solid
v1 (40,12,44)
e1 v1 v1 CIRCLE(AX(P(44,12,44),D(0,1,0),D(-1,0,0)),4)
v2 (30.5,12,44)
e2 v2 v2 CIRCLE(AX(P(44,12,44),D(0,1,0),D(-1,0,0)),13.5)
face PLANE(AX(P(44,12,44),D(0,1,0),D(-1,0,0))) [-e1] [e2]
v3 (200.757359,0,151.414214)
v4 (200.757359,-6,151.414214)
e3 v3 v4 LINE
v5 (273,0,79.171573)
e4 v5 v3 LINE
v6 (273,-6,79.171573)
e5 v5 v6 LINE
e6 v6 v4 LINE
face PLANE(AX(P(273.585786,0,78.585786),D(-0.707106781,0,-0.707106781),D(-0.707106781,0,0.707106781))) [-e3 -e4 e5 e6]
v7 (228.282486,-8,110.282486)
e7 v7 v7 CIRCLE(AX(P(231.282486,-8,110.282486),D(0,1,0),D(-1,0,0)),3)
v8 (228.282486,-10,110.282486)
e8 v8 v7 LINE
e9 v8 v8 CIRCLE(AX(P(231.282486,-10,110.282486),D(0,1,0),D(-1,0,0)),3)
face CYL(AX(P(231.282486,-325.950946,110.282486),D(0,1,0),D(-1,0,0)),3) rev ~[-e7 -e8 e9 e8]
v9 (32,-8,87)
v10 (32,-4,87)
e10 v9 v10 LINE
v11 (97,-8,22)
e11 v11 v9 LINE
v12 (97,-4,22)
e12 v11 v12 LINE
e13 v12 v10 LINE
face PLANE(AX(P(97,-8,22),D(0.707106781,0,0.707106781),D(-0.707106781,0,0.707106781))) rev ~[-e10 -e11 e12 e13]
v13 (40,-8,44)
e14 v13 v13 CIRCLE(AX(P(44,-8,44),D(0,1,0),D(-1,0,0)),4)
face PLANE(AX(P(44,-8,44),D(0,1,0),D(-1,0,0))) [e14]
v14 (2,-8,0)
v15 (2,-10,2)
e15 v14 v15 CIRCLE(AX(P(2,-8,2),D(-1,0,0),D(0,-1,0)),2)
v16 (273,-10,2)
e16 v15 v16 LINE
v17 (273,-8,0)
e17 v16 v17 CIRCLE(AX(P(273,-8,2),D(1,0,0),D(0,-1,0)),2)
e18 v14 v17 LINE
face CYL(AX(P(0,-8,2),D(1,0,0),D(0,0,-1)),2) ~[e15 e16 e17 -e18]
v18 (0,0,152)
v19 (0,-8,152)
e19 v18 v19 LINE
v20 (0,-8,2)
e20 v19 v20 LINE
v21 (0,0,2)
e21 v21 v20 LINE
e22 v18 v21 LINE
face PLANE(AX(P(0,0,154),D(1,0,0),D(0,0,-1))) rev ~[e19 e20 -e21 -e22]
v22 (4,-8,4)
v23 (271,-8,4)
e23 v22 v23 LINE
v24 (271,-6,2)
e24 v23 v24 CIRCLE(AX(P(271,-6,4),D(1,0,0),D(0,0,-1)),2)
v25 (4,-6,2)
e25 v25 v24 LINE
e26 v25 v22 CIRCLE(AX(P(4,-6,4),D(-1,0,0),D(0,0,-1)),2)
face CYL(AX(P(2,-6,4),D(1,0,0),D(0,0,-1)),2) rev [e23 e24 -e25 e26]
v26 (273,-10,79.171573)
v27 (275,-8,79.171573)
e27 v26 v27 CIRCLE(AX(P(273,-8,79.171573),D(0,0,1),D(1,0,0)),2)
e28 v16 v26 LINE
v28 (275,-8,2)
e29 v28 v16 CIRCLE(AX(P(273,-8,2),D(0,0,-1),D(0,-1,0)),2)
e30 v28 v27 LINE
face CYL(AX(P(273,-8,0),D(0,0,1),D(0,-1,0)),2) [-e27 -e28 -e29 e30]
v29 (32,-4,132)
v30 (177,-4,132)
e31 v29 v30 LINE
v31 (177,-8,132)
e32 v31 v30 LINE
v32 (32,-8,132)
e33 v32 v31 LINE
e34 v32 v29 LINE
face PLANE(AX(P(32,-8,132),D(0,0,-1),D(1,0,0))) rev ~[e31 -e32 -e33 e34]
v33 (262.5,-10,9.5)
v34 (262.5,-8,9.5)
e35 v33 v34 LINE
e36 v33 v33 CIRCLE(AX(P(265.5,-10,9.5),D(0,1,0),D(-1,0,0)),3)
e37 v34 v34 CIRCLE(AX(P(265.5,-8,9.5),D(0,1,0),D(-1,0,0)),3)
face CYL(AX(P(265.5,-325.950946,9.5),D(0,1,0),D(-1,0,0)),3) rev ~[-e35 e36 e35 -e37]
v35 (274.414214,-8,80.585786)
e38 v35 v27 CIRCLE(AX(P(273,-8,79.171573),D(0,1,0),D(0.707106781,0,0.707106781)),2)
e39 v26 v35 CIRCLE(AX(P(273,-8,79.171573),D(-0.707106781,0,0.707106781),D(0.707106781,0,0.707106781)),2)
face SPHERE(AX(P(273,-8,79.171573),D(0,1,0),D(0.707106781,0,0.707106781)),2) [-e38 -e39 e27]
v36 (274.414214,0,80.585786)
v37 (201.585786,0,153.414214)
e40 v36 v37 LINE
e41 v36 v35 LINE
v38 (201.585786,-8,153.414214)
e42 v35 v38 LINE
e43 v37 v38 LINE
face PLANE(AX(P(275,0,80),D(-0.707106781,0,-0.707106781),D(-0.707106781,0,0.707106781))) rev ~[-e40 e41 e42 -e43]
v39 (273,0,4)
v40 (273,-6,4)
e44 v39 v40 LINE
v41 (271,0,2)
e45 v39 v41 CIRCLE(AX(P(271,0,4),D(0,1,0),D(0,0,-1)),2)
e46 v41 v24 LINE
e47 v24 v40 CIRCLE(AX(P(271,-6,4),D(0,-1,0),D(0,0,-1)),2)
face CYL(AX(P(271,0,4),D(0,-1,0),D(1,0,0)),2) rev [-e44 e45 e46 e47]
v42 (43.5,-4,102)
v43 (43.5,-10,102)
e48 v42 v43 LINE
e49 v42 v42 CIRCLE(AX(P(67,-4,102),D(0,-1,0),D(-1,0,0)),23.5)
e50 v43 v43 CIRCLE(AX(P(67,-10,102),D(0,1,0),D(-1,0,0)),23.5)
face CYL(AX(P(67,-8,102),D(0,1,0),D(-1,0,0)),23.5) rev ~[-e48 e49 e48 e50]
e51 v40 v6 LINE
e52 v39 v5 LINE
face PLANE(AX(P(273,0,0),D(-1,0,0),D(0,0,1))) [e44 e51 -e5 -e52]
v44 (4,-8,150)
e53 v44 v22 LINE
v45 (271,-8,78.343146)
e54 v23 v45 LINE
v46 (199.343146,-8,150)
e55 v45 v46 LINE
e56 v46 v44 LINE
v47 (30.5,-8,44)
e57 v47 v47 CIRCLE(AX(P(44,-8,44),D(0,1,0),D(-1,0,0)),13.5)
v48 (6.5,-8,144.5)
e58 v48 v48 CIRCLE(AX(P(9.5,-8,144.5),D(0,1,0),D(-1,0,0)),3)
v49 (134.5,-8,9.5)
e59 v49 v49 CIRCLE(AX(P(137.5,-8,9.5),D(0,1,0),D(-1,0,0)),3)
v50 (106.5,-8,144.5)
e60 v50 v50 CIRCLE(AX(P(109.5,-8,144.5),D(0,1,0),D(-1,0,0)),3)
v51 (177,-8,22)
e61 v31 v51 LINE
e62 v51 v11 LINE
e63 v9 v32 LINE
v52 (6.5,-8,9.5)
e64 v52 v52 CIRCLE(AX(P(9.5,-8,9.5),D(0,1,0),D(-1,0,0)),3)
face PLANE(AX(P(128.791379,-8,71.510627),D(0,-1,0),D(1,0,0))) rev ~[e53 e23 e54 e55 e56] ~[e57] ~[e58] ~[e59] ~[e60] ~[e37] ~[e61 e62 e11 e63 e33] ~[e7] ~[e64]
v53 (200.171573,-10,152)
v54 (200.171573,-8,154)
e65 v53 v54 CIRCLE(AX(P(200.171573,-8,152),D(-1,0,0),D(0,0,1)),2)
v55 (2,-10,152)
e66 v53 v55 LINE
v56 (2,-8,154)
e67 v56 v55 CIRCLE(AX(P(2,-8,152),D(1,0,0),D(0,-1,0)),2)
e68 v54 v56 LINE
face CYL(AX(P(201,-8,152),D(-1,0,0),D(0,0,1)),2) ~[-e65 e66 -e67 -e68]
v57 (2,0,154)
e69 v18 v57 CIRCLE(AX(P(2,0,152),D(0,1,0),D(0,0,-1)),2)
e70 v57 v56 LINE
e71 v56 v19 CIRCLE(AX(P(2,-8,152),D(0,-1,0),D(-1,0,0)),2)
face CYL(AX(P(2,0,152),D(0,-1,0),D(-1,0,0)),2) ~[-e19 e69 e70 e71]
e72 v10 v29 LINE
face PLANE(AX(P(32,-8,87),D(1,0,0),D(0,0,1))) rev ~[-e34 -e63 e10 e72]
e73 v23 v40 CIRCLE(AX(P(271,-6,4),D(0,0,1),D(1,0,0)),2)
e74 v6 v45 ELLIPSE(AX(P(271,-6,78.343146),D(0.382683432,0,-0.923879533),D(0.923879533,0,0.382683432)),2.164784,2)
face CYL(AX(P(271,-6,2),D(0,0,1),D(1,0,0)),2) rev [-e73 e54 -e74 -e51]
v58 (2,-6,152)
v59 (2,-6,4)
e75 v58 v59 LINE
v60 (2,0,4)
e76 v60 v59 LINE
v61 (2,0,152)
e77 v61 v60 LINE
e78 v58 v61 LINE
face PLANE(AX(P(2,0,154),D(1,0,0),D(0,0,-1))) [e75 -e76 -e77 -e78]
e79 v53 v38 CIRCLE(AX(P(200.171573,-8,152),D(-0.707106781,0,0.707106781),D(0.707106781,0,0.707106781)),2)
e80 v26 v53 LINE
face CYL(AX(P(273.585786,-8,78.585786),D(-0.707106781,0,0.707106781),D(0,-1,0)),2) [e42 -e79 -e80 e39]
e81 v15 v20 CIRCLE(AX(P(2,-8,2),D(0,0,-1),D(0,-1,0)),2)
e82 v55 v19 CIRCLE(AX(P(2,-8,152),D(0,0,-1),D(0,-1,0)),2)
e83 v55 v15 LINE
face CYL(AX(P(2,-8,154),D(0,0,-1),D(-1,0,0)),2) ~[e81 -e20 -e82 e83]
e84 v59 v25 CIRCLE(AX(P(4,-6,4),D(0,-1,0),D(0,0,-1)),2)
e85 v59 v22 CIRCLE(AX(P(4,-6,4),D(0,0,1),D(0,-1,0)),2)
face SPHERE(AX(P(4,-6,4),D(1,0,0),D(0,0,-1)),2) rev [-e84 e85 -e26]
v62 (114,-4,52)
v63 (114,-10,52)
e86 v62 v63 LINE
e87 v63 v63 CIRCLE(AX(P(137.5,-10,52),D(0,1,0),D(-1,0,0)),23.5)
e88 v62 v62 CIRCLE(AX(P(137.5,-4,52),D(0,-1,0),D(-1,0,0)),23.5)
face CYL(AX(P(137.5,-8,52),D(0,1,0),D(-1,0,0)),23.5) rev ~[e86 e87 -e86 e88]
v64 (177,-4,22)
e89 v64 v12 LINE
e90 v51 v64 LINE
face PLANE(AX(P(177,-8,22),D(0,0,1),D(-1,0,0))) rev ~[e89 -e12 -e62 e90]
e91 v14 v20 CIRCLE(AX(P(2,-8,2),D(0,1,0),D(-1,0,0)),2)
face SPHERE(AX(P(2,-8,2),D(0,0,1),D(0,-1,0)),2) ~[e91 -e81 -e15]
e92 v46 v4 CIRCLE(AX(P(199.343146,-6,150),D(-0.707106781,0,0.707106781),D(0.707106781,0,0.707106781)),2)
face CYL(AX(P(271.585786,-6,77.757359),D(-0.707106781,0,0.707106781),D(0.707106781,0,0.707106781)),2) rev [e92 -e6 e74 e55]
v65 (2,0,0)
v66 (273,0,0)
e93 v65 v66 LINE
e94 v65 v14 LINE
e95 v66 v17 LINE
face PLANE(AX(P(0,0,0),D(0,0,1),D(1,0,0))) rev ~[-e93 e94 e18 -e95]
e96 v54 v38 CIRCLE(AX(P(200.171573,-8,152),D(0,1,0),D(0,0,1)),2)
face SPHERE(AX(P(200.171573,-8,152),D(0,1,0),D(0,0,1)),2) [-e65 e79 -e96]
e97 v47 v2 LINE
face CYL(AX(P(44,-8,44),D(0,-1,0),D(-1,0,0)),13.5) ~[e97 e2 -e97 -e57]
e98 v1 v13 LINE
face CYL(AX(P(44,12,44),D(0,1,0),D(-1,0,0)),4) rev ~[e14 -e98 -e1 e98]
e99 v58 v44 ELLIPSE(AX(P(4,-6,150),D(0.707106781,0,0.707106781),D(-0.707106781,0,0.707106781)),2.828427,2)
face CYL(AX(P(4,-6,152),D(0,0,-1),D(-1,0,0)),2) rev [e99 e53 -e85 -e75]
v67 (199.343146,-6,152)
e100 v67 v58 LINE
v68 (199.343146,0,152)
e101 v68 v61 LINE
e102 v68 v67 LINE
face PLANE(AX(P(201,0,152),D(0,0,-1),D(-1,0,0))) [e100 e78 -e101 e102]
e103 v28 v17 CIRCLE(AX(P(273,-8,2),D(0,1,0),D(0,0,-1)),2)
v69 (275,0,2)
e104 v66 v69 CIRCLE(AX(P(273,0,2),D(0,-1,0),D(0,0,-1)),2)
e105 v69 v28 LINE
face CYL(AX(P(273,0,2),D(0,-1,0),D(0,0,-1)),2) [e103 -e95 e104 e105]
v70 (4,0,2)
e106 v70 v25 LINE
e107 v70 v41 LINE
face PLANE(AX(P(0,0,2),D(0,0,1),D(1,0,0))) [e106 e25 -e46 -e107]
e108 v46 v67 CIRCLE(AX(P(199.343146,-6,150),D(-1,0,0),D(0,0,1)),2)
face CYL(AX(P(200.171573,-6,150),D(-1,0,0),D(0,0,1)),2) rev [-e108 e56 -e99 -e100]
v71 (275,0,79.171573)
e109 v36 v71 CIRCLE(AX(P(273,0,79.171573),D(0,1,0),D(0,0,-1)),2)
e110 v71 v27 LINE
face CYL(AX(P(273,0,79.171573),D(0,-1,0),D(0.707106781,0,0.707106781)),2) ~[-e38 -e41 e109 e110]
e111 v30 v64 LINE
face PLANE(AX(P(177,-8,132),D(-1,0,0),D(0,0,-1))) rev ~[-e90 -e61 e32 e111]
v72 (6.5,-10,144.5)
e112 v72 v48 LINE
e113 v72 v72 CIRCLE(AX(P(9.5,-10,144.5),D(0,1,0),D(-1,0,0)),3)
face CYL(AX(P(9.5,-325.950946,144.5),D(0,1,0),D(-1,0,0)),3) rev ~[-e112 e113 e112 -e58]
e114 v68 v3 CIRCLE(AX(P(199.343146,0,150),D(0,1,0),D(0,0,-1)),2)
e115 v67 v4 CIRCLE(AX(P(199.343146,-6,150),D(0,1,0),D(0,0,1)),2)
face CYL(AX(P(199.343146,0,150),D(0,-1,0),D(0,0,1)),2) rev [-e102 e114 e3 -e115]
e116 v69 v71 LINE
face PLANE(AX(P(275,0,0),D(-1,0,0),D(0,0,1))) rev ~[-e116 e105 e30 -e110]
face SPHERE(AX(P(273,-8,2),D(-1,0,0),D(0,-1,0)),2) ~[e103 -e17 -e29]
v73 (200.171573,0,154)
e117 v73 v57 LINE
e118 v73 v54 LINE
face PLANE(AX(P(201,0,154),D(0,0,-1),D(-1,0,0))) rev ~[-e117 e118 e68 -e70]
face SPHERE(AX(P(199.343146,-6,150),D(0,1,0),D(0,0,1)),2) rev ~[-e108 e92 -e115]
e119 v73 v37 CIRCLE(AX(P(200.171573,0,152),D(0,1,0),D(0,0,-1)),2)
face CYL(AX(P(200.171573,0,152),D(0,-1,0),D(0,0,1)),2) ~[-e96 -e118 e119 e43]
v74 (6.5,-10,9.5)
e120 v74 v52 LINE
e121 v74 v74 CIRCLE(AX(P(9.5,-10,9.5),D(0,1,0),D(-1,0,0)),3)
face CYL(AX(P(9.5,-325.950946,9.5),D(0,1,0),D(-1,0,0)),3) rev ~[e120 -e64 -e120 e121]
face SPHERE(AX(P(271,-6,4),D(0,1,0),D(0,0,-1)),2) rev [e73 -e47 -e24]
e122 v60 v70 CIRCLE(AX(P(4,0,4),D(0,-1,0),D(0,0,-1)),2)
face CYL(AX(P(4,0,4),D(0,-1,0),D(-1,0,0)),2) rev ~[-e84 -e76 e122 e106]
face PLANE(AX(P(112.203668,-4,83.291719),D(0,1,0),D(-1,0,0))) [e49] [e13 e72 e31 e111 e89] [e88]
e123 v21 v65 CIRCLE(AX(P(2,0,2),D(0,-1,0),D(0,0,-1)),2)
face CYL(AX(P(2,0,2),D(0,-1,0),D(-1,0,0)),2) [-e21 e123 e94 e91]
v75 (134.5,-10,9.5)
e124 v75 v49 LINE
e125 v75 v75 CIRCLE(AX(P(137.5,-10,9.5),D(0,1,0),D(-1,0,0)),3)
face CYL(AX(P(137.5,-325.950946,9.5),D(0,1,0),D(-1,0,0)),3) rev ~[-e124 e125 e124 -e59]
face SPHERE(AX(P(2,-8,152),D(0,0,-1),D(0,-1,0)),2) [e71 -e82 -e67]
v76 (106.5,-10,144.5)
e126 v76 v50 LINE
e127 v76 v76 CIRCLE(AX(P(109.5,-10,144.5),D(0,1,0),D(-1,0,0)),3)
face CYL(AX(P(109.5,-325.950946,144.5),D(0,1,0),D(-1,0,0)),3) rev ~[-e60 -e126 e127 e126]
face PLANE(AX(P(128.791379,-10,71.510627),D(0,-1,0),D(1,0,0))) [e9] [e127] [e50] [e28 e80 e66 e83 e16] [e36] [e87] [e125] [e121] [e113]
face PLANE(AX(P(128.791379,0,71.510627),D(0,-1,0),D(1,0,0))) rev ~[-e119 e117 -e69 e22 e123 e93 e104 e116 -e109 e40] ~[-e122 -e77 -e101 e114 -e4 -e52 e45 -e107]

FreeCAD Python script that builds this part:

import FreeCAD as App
import Part
import Sketcher
from FreeCAD import Vector
Q = App.Units.Quantity


def edges_at(feature, points):
    """Names of the edges that pass closest to the given points."""
    edges = feature.Shape.Edges
    near = lambda p: min(range(len(edges)), key=lambda i: edges[i].distToShape(Part.Vertex(*p))[0])
    return sorted({f"Edge{near(p) + 1}" for p in points})


def faces_at(feature, points):
    """Names of the faces that lie closest to the given points."""
    faces = feature.Shape.Faces
    near = lambda p: min(range(len(faces)), key=lambda i: faces[i].distToShape(Part.Vertex(*p))[0])
    return sorted({f"Face{near(p) + 1}" for p in points})

doc = App.newDocument("Part")
params = doc.addObject("Spreadsheet::Sheet", "Params")
for row, (alias, value) in enumerate([
    ("sketch1_width", "275 mm"),
    ("sketch1_width2", "201 mm"),
    ("sketch1_height", "154 mm"),
    ("sketch1_height2", "80 mm"),
    ("pad1_length", "10 mm"),
    ("thickness_wall", "2 mm"),
    ("sketch2_width", "145 mm"),
    ("sketch2_width2", "80 mm"),
    ("sketch2_height", "45 mm"),
    ("sketch2_height2", "110 mm"),
    ("pad2_length", "4 mm"),
    ("sketch3_diameter", "47 mm"),
    ("sketch4_diameter", "27 mm"),
    ("pad3_length", "20 mm"),
    ("sketch5_diameter", "8 mm"),
    ("pocket2_length", "20 mm"),
    ("sketch6_diameter", "6 mm"),
    ("hole_diameter", "6 mm"),
    ("fillet_radius", "2 mm"),
    ("fillet2_radius", "2 mm"),
], start=1):
    params.set(f"A{row}", alias)
    params.set(f"B{row}", "=" + value)
    params.setAlias(f"B{row}", alias)

body = doc.addObject("PartDesign::Body", "Body")

sketch1 = body.newObject("Sketcher::SketchObject", "Sketch")
sketch1.AttachmentSupport = (doc.getObject("XZ_Plane"), [""])
sketch1.MapMode = "FlatFace"
sketch1.addGeometry(Part.LineSegment(Vector(0, 154, 0), Vector(0, 0, 0)), False)
sketch1.addGeometry(Part.LineSegment(Vector(0, 0, 0), Vector(275, 0, 0)), False)
sketch1.addGeometry(Part.LineSegment(Vector(275, 0, 0), Vector(275, 80, 0)), False)
sketch1.addGeometry(Part.LineSegment(Vector(275, 80, 0), Vector(201, 154, 0)), False)
sketch1.addGeometry(Part.LineSegment(Vector(201, 154, 0), Vector(0, 154, 0)), False)
sketch1.addConstraint(Sketcher.Constraint("Coincident", 0, 2, 1, 1))
sketch1.addConstraint(Sketcher.Constraint("Coincident", 1, 2, 2, 1))
sketch1.addConstraint(Sketcher.Constraint("Coincident", 2, 2, 3, 1))
sketch1.addConstraint(Sketcher.Constraint("Coincident", 3, 2, 4, 1))
sketch1.addConstraint(Sketcher.Constraint("Coincident", 4, 2, 0, 1))
sketch1.addConstraint(Sketcher.Constraint("Vertical", 0))
sketch1.addConstraint(Sketcher.Constraint("Horizontal", 1))
sketch1.addConstraint(Sketcher.Constraint("Vertical", 2))
sketch1.addConstraint(Sketcher.Constraint("Horizontal", 4))
sketch1.addConstraint(Sketcher.Constraint("Coincident", 0, 2, -1, 1))
sketch1.addConstraint(Sketcher.Constraint("DistanceX", 1, 1, 1, 2, Q("275 mm")))
sketch1.addConstraint(Sketcher.Constraint("DistanceX", 4, 2, 4, 1, Q("201 mm")))
sketch1.addConstraint(Sketcher.Constraint("DistanceY", 0, 2, 0, 1, Q("154 mm")))
sketch1.addConstraint(Sketcher.Constraint("DistanceY", 2, 1, 2, 2, Q("80 mm")))
sketch1.setExpression("Constraints[10]", "Params.sketch1_width")
sketch1.setExpression("Constraints[11]", "Params.sketch1_width2")
sketch1.setExpression("Constraints[12]", "Params.sketch1_height")
sketch1.setExpression("Constraints[13]", "Params.sketch1_height2")
pad1 = body.newObject("PartDesign::Pad", "Pad")
pad1.Profile = sketch1
pad1.setExpression("Length", "Params.pad1_length")
doc.recompute()

thickness = body.newObject("PartDesign::Thickness", "Thickness")
thickness.Base = (pad1, faces_at(pad1, [(137.5, 0, 77)]))
thickness.setExpression("Value", "Params.thickness_wall")
thickness.Reversed = True
thickness.Join = "Arc"

sketch2 = body.newObject("Sketcher::SketchObject", "Sketch001")
sketch2.AttachmentSupport = (doc.getObject("XZ_Plane"), [""])
sketch2.MapMode = "FlatFace"
sketch2.AttachmentOffset = App.Placement(Vector(0, 0, 8), App.Rotation())
sketch2.addGeometry(Part.LineSegment(Vector(32, 87, 0), Vector(32, 132, 0)), False)
sketch2.addGeometry(Part.LineSegment(Vector(32, 132, 0), Vector(177, 132, 0)), False)
sketch2.addGeometry(Part.LineSegment(Vector(177, 132, 0), Vector(177, 22, 0)), False)
sketch2.addGeometry(Part.LineSegment(Vector(177, 22, 0), Vector(97, 22, 0)), False)
sketch2.addGeometry(Part.LineSegment(Vector(97, 22, 0), Vector(32, 87, 0)), False)
sketch2.addConstraint(Sketcher.Constraint("Coincident", 0, 2, 1, 1))
sketch2.addConstraint(Sketcher.Constraint("Coincident", 1, 2, 2, 1))
sketch2.addConstraint(Sketcher.Constraint("Coincident", 2, 2, 3, 1))
sketch2.addConstraint(Sketcher.Constraint("Coincident", 3, 2, 4, 1))
sketch2.addConstraint(Sketcher.Constraint("Coincident", 4, 2, 0, 1))
sketch2.addConstraint(Sketcher.Constraint("Vertical", 0))
sketch2.addConstraint(Sketcher.Constraint("Horizontal", 1))
sketch2.addConstraint(Sketcher.Constraint("Vertical", 2))
sketch2.addConstraint(Sketcher.Constraint("Horizontal", 3))
sketch2.addConstraint(Sketcher.Constraint("DistanceX", 1, 1, 1, 2, Q("145 mm")))
sketch2.addConstraint(Sketcher.Constraint("DistanceX", 3, 2, 3, 1, Q("80 mm")))
sketch2.addConstraint(Sketcher.Constraint("DistanceY", 0, 1, 0, 2, Q("45 mm")))
sketch2.addConstraint(Sketcher.Constraint("DistanceY", 2, 2, 2, 1, Q("110 mm")))
sketch2.addConstraint(Sketcher.Constraint("DistanceX", -1, 1, 0, 2, Q("32 mm")))
sketch2.addConstraint(Sketcher.Constraint("DistanceY", -1, 1, 0, 2, Q("132 mm")))
sketch2.setExpression("Constraints[9]", "Params.sketch2_width")
sketch2.setExpression("Constraints[10]", "Params.sketch2_width2")
sketch2.setExpression("Constraints[11]", "Params.sketch2_height")
sketch2.setExpression("Constraints[12]", "Params.sketch2_height2")
pad2 = body.newObject("PartDesign::Pad", "Pad001")
pad2.Profile = sketch2
pad2.setExpression("Length", "Params.pad2_length")
pad2.Reversed = True

sketch3 = body.newObject("Sketcher::SketchObject", "Sketch002")
sketch3.AttachmentSupport = (doc.getObject("XZ_Plane"), [""])
sketch3.MapMode = "FlatFace"
sketch3.AttachmentOffset = App.Placement(Vector(0, 0, 8), App.Rotation())
sketch3.addGeometry(Part.Circle(Vector(67, 102, 0), Vector(0, 0, 1), 24), False)
sketch3.addGeometry(Part.Circle(Vector(138, 52, 0), Vector(0, 0, 1), 24), False)
sketch3.addConstraint(Sketcher.Constraint("Equal", 0, 1))
sketch3.addConstraint(Sketcher.Constraint("Diameter", 0, Q("47 mm")))
sketch3.addConstraint(Sketcher.Constraint("DistanceX", -1, 1, 0, 3, Q("67 mm")))
sketch3.addConstraint(Sketcher.Constraint("DistanceY", -1, 1, 0, 3, Q("102 mm")))
sketch3.addConstraint(Sketcher.Constraint("DistanceY", -1, 1, 1, 3, Q("52 mm")))
sketch3.addConstraint(Sketcher.Constraint("DistanceX", -1, 1, 1, 3, Q("137.5 mm")))
sketch3.setExpression("Constraints[1]", "Params.sketch3_diameter")
pocket1 = body.newObject("PartDesign::Pocket", "Pocket")
pocket1.Profile = sketch3
pocket1.Type = "ThroughAll"
pocket1.Midplane = True

sketch4 = body.newObject("Sketcher::SketchObject", "Sketch003")
sketch4.AttachmentSupport = (doc.getObject("XZ_Plane"), [""])
sketch4.MapMode = "FlatFace"
sketch4.AttachmentOffset = App.Placement(Vector(0, 0, 8), App.Rotation())
sketch4.addGeometry(Part.Circle(Vector(44, 44, 0), Vector(0, 0, 1), 14), False)
sketch4.addConstraint(Sketcher.Constraint("Diameter", 0, Q("27 mm")))
sketch4.addConstraint(Sketcher.Constraint("DistanceX", -1, 1, 0, 3, Q("44 mm")))
sketch4.addConstraint(Sketcher.Constraint("DistanceY", -1, 1, 0, 3, Q("44 mm")))
sketch4.setExpression("Constraints[0]", "Params.sketch4_diameter")
pad3 = body.newObject("PartDesign::Pad", "Pad002")
pad3.Profile = sketch4
pad3.setExpression("Length", "Params.pad3_length")
pad3.Reversed = True

sketch5 = body.newObject("Sketcher::SketchObject", "Sketch004")
sketch5.AttachmentSupport = (doc.getObject("XZ_Plane"), [""])
sketch5.MapMode = "FlatFace"
sketch5.AttachmentOffset = App.Placement(Vector(0, 0, -12), App.Rotation())
sketch5.addGeometry(Part.Circle(Vector(44, 44, 0), Vector(0, 0, 1), 4), False)
sketch5.addConstraint(Sketcher.Constraint("Diameter", 0, Q("8 mm")))
sketch5.addConstraint(Sketcher.Constraint("DistanceX", -1, 1, 0, 3, Q("44 mm")))
sketch5.addConstraint(Sketcher.Constraint("DistanceY", -1, 1, 0, 3, Q("44 mm")))
sketch5.setExpression("Constraints[0]", "Params.sketch5_diameter")
pocket2 = body.newObject("PartDesign::Pocket", "Pocket001")
pocket2.Profile = sketch5
pocket2.setExpression("Length", "Params.pocket2_length")
pocket2.Reversed = True

sketch6 = body.newObject("Sketcher::SketchObject", "Sketch005")
sketch6.AttachmentSupport = (doc.getObject("XZ_Plane"), [""])
sketch6.MapMode = "FlatFace"
sketch6.AttachmentOffset = App.Placement(Vector(0, 0, 10), App.Rotation())
sketch6.addGeometry(Part.Circle(Vector(9.5, 144.5, 0), Vector(0, 0, 1), 3), False)
sketch6.addGeometry(Part.Circle(Vector(109.5, 144.5, 0), Vector(0, 0, 1), 3), False)
sketch6.addGeometry(Part.Circle(Vector(231.3, 110.3, 0), Vector(0, 0, 1), 3), False)
sketch6.addGeometry(Part.Circle(Vector(265.5, 9.5, 0), Vector(0, 0, 1), 3), False)
sketch6.addGeometry(Part.Circle(Vector(137.5, 9.5, 0), Vector(0, 0, 1), 3), False)
sketch6.addGeometry(Part.Circle(Vector(9.5, 9.5, 0), Vector(0, 0, 1), 3), False)
sketch6.addConstraint(Sketcher.Constraint("Equal", 0, 1))
sketch6.addConstraint(Sketcher.Constraint("Equal", 1, 2))
sketch6.addConstraint(Sketcher.Constraint("Equal", 2, 3))
sketch6.addConstraint(Sketcher.Constraint("Equal", 3, 4))
sketch6.addConstraint(Sketcher.Constraint("Equal", 4, 5))
sketch6.addConstraint(Sketcher.Constraint("Horizontal", 0, 3, 1, 3))
sketch6.addConstraint(Sketcher.Constraint("Horizontal", 3, 3, 4, 3))
sketch6.addConstraint(Sketcher.Constraint("Horizontal", 4, 3, 5, 3))
sketch6.addConstraint(Sketcher.Constraint("Vertical", 0, 3, 5, 3))
sketch6.addConstraint(Sketcher.Constraint("Diameter", 0, Q("6 mm")))
sketch6.addConstraint(Sketcher.Constraint("DistanceX", 0, 3, 1, 3, Q("100 mm")))
sketch6.addConstraint(Sketcher.Constraint("DistanceX", 1, 3, 3, 3, Q("156 mm")))
sketch6.addConstraint(Sketcher.Constraint("DistanceY", 3, 3, 1, 3, Q("135 mm")))
sketch6.addConstraint(Sketcher.Constraint("DistanceX", 4, 3, 3, 3, Q("128 mm")))
sketch6.addConstraint(Sketcher.Constraint("DistanceX", -1, 1, 0, 3, Q("9.5 mm")))
sketch6.addConstraint(Sketcher.Constraint("DistanceY", -1, 1, 0, 3, Q("144.5 mm")))
sketch6.addConstraint(Sketcher.Constraint("DistanceX", -1, 1, 2, 3, Q("231.282486 mm")))
sketch6.addConstraint(Sketcher.Constraint("DistanceY", -1, 1, 2, 3, Q("110.282486 mm")))
sketch6.setExpression("Constraints[9]", "Params.sketch6_diameter")
doc.recompute()
hole = body.newObject("PartDesign::Hole", "Hole")
hole.Profile = sketch6
hole.ThreadType = "None"
hole.setExpression("Diameter", "Params.hole_diameter")
hole.DepthType = "ThroughAll"
doc.recompute()

fillet = body.newObject("PartDesign::Fillet", "Fillet")
fillet.Base = (hole, edges_at(hole, [
    (0, -10, 77),
    (137.5, -10, 0),
    (238, -10, 117),
    (275, -10, 40),
    (275, -5, 0),
    (275, -5, 80),
    (201, -5, 154),
    (0, -5, 0),
    (100.5, -10, 154),
    (0, -5, 154),
]))
fillet.setExpression("Radius", "Params.fillet_radius")
doc.recompute()

fillet2 = body.newObject("PartDesign::Fillet", "Fillet001")
fillet2.Base = (fillet, edges_at(fillet, [
    (273, -4, 2),
    (137.5, -8, 2),
    (273, -8, 40.586),
    (236.586, -8, 115.586),
    (200.172, -4, 152),
    (101.086, -8, 152),
    (2, -4, 2),
    (2, -8, 77),
]))
fillet2.setExpression("Radius", "Params.fillet2_radius")

doc.recompute()
